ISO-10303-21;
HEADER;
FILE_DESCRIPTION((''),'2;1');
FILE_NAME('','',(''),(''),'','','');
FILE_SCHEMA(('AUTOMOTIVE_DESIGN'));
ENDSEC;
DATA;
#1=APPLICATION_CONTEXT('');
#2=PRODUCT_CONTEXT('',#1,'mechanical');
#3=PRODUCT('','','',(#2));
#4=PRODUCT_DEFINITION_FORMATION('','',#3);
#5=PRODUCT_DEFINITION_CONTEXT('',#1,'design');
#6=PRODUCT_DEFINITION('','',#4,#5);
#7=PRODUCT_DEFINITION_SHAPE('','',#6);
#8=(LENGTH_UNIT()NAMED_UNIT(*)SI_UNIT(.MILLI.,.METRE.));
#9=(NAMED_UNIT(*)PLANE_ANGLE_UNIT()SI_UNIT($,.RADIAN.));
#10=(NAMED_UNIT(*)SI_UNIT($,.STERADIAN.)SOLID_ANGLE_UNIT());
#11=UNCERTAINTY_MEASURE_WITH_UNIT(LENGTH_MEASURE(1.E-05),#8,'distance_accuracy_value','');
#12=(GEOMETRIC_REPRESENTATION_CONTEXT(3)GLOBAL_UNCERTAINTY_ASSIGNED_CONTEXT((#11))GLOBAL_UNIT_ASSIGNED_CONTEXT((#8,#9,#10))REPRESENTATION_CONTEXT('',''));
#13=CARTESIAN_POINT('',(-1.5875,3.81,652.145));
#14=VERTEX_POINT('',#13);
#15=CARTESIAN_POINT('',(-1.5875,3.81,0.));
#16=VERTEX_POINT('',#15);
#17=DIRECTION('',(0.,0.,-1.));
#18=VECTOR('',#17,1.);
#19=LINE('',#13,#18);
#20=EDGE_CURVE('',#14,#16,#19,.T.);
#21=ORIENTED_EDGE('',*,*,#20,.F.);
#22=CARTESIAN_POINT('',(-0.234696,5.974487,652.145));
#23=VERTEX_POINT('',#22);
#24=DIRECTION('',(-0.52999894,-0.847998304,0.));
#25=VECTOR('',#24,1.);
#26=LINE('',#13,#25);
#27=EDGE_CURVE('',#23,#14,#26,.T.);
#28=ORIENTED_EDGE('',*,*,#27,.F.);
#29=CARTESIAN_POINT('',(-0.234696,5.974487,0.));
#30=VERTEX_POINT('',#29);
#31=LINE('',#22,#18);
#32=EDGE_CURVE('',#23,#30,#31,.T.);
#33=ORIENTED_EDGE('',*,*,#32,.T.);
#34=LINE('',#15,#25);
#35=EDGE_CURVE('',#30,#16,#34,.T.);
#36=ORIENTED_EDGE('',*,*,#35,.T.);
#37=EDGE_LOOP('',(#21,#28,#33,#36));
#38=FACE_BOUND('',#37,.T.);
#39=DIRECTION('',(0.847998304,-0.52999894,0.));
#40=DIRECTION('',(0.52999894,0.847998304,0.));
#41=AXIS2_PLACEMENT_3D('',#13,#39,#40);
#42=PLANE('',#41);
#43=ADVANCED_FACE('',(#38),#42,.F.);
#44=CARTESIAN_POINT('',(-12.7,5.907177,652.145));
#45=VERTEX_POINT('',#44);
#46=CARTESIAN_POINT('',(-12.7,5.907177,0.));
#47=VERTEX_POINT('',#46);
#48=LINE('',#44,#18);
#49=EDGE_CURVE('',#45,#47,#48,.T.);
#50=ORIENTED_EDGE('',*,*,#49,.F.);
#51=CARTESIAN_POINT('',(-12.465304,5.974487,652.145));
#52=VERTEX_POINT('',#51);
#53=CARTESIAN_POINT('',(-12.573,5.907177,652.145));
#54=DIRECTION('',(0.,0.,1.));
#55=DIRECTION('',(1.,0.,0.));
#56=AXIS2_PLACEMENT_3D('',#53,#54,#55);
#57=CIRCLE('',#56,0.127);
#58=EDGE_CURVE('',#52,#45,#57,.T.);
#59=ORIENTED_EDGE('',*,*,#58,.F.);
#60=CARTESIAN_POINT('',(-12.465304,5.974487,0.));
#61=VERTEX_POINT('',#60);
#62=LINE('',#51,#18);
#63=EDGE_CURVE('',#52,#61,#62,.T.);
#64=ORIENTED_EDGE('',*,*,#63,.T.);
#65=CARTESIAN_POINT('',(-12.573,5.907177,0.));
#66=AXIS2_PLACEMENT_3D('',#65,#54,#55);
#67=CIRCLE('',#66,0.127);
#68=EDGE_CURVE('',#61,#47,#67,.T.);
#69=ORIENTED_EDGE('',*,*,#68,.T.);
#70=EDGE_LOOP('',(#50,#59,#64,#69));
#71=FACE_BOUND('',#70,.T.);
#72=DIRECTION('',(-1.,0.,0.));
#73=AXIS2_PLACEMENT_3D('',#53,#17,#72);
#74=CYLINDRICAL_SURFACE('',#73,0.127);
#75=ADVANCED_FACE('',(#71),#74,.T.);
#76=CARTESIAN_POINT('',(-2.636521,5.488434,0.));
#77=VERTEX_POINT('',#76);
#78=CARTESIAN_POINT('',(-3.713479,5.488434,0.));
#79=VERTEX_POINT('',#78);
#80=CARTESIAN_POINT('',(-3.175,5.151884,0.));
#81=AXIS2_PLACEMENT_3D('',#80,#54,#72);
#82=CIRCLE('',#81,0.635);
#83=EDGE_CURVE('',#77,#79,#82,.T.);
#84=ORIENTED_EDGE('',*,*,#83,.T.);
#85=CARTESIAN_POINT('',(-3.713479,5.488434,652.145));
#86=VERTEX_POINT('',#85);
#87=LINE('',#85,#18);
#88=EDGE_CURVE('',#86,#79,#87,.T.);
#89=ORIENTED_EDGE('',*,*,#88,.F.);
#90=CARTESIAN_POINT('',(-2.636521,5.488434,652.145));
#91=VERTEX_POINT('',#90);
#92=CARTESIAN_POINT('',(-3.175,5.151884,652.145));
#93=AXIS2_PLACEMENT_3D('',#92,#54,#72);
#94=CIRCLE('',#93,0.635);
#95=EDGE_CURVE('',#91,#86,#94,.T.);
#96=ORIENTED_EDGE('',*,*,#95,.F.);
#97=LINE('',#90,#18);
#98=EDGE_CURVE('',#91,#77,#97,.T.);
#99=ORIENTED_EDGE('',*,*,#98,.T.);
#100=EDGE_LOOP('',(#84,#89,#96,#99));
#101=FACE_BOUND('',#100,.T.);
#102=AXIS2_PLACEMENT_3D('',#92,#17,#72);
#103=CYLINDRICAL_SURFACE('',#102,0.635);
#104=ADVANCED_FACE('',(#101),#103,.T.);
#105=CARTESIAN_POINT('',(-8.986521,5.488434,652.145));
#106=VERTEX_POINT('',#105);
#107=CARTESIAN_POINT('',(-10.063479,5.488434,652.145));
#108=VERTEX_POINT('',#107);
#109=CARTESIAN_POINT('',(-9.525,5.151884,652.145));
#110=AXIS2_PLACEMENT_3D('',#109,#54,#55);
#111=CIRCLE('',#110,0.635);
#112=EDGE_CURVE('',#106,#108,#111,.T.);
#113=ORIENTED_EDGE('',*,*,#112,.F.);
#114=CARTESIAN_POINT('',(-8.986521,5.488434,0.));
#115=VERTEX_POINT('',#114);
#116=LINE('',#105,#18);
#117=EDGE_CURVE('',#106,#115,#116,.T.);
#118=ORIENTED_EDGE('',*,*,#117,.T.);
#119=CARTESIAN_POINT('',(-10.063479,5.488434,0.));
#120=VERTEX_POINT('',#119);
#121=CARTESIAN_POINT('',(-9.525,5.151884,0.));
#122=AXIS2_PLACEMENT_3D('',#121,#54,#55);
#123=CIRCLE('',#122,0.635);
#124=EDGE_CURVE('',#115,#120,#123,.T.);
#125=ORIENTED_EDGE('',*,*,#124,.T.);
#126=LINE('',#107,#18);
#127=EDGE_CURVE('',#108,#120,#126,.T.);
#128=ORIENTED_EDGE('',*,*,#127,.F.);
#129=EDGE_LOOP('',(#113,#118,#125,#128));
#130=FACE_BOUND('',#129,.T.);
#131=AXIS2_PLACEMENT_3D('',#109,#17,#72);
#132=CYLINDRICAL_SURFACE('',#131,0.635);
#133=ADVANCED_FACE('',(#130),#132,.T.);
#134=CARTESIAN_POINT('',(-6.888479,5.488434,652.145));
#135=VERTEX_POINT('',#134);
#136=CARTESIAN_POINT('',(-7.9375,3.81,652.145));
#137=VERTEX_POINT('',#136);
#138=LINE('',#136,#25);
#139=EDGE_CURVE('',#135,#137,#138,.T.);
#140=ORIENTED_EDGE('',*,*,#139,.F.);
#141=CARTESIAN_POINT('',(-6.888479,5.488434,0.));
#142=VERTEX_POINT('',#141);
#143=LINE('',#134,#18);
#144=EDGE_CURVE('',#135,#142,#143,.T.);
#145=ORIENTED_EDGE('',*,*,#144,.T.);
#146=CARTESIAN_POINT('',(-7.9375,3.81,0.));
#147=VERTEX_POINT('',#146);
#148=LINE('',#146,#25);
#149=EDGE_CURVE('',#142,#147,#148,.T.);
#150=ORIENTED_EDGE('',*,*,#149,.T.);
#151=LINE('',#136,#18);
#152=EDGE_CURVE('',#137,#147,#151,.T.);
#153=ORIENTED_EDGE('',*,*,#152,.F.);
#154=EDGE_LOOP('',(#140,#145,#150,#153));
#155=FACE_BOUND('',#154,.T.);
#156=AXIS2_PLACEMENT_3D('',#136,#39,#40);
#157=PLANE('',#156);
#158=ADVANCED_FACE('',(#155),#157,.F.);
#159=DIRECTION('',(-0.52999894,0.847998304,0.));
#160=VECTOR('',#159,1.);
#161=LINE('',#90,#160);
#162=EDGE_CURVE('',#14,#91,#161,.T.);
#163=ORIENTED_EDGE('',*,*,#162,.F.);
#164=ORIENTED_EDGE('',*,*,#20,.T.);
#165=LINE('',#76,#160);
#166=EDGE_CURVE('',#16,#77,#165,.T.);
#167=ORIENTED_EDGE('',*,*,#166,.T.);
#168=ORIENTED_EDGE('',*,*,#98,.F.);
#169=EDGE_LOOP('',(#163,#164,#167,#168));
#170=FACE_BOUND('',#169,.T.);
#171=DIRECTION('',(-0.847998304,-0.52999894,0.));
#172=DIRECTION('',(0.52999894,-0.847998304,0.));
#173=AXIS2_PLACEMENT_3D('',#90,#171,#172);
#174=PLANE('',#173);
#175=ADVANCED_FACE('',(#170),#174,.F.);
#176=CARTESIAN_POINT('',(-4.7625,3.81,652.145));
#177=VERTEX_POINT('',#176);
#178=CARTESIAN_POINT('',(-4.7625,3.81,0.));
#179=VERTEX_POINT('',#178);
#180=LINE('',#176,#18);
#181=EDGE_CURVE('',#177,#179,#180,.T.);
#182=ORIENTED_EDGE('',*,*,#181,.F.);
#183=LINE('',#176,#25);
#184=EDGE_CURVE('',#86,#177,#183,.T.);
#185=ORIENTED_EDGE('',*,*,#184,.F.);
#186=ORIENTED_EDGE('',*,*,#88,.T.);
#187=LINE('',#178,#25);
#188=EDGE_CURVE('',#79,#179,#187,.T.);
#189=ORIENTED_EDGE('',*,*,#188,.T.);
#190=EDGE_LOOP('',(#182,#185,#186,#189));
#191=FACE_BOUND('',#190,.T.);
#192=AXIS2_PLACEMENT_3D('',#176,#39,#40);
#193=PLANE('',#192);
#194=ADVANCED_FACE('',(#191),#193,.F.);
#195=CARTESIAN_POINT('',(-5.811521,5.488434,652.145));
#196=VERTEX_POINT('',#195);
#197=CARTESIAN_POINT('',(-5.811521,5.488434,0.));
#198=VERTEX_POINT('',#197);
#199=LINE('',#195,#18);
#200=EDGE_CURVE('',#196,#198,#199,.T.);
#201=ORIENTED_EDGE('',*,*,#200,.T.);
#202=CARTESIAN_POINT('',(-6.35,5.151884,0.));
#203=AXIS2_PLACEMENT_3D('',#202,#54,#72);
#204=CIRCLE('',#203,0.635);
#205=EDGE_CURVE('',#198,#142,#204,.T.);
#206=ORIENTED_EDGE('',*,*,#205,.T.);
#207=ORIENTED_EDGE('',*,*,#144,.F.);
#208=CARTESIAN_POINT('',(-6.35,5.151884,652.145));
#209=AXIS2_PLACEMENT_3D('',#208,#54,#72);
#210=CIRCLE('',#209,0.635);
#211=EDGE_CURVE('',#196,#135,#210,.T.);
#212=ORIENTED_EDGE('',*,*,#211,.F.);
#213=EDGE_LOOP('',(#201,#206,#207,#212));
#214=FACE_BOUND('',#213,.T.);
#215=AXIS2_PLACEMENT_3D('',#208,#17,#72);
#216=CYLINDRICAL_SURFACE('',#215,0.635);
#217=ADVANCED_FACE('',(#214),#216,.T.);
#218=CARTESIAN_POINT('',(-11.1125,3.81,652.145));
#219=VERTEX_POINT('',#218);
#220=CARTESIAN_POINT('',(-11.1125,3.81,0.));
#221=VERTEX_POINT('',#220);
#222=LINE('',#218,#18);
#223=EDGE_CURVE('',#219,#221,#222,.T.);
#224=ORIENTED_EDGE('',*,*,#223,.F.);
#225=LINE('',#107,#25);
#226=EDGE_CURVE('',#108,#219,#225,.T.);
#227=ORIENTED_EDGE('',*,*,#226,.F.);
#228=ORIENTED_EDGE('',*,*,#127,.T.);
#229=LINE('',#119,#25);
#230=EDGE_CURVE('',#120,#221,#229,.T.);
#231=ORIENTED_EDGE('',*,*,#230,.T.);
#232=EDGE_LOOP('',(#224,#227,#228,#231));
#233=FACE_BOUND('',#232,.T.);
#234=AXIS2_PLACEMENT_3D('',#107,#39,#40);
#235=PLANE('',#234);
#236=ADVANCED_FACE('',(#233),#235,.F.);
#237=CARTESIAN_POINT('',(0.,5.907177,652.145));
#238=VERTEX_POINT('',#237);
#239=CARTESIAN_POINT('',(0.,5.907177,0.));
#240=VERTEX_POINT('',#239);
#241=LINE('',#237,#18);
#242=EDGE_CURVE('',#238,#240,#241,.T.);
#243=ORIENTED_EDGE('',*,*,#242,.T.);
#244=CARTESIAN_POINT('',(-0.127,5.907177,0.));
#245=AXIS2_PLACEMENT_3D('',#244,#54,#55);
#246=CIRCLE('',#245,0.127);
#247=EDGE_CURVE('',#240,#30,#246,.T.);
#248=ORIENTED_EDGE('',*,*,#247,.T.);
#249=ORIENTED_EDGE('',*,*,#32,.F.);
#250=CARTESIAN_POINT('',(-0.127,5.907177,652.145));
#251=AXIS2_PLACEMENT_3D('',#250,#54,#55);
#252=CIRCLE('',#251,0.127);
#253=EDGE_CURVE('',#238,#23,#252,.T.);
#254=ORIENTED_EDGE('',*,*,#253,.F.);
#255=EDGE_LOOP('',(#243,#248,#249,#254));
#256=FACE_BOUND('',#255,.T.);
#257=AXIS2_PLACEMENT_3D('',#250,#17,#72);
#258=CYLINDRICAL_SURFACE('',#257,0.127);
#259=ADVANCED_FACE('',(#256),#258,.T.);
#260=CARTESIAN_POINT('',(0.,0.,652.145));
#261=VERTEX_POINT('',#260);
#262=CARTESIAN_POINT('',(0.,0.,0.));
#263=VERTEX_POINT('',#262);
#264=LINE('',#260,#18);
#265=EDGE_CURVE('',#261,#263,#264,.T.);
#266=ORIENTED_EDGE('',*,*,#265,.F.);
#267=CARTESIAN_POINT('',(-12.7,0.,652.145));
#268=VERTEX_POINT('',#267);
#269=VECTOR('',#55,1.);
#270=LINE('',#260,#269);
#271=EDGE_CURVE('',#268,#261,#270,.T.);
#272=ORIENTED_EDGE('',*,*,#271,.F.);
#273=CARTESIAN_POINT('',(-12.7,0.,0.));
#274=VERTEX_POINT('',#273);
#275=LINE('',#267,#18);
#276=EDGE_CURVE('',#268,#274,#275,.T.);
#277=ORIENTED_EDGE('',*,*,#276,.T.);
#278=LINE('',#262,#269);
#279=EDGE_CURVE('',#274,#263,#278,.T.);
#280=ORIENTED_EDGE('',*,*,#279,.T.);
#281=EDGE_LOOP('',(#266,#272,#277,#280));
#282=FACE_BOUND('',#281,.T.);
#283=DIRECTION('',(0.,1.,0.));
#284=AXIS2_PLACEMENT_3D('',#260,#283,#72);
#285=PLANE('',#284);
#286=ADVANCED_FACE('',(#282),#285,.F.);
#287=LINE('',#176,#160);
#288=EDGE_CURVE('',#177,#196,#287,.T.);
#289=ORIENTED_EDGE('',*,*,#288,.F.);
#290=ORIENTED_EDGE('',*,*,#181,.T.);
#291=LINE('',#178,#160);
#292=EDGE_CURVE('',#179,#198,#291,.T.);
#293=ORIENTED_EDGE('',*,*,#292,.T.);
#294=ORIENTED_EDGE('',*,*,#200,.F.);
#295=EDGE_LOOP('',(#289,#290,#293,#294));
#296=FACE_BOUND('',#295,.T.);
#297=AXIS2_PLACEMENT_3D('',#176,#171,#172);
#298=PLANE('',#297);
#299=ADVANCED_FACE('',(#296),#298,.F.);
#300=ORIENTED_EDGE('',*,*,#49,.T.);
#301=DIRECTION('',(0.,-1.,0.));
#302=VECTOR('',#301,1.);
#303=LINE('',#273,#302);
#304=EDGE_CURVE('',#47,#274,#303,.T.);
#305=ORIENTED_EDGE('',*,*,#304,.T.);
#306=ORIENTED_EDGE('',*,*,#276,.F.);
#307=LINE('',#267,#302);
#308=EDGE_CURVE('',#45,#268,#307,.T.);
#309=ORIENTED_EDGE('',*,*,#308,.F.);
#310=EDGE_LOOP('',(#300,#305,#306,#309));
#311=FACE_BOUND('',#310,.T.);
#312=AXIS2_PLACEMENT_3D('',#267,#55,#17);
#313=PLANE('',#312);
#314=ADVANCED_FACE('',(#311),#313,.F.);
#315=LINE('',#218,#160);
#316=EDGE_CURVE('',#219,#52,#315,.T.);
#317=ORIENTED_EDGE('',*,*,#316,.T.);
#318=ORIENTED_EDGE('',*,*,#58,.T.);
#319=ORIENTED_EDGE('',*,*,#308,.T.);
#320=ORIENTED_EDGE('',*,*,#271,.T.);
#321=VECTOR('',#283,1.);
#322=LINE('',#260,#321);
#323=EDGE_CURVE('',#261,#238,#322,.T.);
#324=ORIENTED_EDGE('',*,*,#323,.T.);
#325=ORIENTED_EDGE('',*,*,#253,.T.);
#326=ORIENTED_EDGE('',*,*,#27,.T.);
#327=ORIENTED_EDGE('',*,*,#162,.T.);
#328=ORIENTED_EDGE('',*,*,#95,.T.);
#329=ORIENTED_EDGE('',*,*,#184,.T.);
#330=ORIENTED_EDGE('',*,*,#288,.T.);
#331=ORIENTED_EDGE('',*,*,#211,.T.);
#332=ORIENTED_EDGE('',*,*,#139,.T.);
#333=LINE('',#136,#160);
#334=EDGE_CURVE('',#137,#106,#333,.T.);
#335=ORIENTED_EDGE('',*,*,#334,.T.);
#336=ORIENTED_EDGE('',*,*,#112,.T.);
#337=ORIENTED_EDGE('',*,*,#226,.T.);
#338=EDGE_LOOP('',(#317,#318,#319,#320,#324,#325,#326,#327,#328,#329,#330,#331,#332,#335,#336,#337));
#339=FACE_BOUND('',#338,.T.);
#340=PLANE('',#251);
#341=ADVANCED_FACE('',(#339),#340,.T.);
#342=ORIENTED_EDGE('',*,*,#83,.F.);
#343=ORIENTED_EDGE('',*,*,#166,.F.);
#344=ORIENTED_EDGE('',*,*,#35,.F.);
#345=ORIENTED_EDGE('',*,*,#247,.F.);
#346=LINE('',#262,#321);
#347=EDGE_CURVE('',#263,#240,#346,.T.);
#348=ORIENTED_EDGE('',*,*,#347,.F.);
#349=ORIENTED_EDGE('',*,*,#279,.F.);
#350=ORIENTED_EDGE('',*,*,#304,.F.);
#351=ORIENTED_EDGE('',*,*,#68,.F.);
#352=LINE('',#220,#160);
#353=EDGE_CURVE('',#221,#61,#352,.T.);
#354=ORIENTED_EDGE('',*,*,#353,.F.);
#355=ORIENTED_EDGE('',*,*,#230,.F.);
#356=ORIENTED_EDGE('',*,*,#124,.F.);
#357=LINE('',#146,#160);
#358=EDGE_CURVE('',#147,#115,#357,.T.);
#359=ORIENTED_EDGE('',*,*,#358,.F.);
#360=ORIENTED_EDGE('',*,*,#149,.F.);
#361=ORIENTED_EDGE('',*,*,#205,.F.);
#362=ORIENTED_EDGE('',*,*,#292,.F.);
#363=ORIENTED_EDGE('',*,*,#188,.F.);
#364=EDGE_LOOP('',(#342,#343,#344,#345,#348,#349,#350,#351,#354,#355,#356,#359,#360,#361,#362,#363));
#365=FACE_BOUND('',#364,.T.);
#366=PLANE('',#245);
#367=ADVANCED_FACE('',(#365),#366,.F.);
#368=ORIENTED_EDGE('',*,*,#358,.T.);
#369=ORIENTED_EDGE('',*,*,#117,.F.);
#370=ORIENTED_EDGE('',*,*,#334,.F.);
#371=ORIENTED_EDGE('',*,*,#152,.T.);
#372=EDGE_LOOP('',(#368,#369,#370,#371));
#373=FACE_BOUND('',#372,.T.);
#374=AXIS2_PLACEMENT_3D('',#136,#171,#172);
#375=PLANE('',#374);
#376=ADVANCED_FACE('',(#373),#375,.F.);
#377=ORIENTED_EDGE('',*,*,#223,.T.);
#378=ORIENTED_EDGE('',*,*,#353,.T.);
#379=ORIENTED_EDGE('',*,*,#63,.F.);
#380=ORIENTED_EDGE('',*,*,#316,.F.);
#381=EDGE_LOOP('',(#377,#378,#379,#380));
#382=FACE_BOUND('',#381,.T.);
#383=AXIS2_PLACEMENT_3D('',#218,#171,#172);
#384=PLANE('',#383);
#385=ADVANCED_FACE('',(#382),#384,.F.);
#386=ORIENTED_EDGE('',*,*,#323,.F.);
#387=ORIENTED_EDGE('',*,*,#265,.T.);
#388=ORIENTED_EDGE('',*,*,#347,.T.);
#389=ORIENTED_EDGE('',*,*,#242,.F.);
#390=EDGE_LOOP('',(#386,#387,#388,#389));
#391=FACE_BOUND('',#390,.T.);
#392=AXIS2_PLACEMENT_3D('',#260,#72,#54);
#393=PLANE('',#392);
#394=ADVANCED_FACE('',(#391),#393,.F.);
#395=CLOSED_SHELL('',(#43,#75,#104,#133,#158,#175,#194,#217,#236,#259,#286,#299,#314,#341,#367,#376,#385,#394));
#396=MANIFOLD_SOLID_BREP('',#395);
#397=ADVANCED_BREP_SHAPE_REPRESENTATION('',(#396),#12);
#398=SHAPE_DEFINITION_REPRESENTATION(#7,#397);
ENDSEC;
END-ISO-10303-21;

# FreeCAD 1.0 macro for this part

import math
import FreeCAD as App
import Part
import Sketcher

V = App.Vector
Q = App.Units.Quantity

doc = App.newDocument("Part")
body = doc.addObject("PartDesign::Body", "Body")

# Sketch on XY plane
sketch1 = doc.addObject("Sketcher::SketchObject", "Sketch")
body.addObject(sketch1)
sketch1.AttachmentSupport = (doc.XY_Plane, [""])
sketch1.MapMode = "FlatFace"
sketch1.addGeometry([
    Part.LineSegment(V(-12.7, 0, 0), V(0, 0, 0)),  # 0
    Part.LineSegment(V(0, 0, 0), V(0, 5.91, 0)),  # 1
    Part.ArcOfCircle(Part.Circle(V(-0.13, 5.91, 0), V(0, 0, 1), 0.13), math.radians(0), math.radians(148)),  # 2
    Part.LineSegment(V(-0.23, 5.97, 0), V(-1.59, 3.81, 0)),  # 3
    Part.LineSegment(V(-1.59, 3.81, 0), V(-2.64, 5.49, 0)),  # 4
    Part.ArcOfCircle(Part.Circle(V(-3.17, 5.15, 0), V(0, 0, 1), 0.64), math.radians(32), math.radians(148)),  # 5
    Part.LineSegment(V(-3.71, 5.49, 0), V(-4.76, 3.81, 0)),  # 6
    Part.LineSegment(V(-4.76, 3.81, 0), V(-5.81, 5.49, 0)),  # 7
    Part.ArcOfCircle(Part.Circle(V(-6.35, 5.15, 0), V(0, 0, 1), 0.64), math.radians(32), math.radians(148)),  # 8
    Part.LineSegment(V(-6.89, 5.49, 0), V(-7.94, 3.81, 0)),  # 9
    Part.LineSegment(V(-7.94, 3.81, 0), V(-8.99, 5.49, 0)),  # 10
    Part.ArcOfCircle(Part.Circle(V(-9.53, 5.15, 0), V(0, 0, 1), 0.64), math.radians(32), math.radians(148)),  # 11
    Part.LineSegment(V(-10.06, 5.49, 0), V(-11.11, 3.81, 0)),  # 12
    Part.LineSegment(V(-11.11, 3.81, 0), V(-12.47, 5.97, 0)),  # 13
    Part.ArcOfCircle(Part.Circle(V(-12.57, 5.91, 0), V(0, 0, 1), 0.13), math.radians(32), math.radians(180)),  # 14
    Part.LineSegment(V(-12.7, 5.91, 0), V(-12.7, 0, 0)),  # 15
], False)
sketch1.addConstraint([
    Sketcher.Constraint("Coincident", 0, 2, 1, 1),
    Sketcher.Constraint("Tangent", 1, 2, 2, 1),
    Sketcher.Constraint("Tangent", 2, 2, 3, 1),
    Sketcher.Constraint("Coincident", 3, 2, 4, 1),
    Sketcher.Constraint("Tangent", 4, 2, 5, 1),
    Sketcher.Constraint("Tangent", 5, 2, 6, 1),
    Sketcher.Constraint("Coincident", 6, 2, 7, 1),
    Sketcher.Constraint("Tangent", 7, 2, 8, 1),
    Sketcher.Constraint("Tangent", 8, 2, 9, 1),
    Sketcher.Constraint("Coincident", 9, 2, 10, 1),
    Sketcher.Constraint("Tangent", 10, 2, 11, 1),
    Sketcher.Constraint("Tangent", 11, 2, 12, 1),
    Sketcher.Constraint("Coincident", 12, 2, 13, 1),
    Sketcher.Constraint("Tangent", 13, 2, 14, 1),
    Sketcher.Constraint("Tangent", 14, 2, 15, 1),
    Sketcher.Constraint("Coincident", 15, 2, 0, 1),
    Sketcher.Constraint("Horizontal", 0),
    Sketcher.Constraint("Vertical", 1),
    Sketcher.Constraint("Vertical", 15),
    Sketcher.Constraint("Coincident", 0, 2, -1, 1),
    Sketcher.Constraint("Equal", 5, 8),
    Sketcher.Constraint("Equal", 8, 11),
    Sketcher.Constraint("Equal", 2, 14),
    Sketcher.Constraint("Parallel", 3, 6),
    Sketcher.Constraint("Parallel", 4, 7),
    Sketcher.Constraint("Parallel", 6, 9),
    Sketcher.Constraint("Parallel", 7, 10),
    Sketcher.Constraint("Parallel", 9, 12),
    Sketcher.Constraint("Parallel", 10, 13),
    Sketcher.Constraint("Horizontal", 5, 3, 8, 3),
    Sketcher.Constraint("Horizontal", 8, 3, 11, 3),
    Sketcher.Constraint("Horizontal", 2, 3, 14, 3),
    Sketcher.Constraint("Horizontal", 4, 2, 5, 2),
    Sketcher.Constraint("Horizontal", 3, 2, 6, 2),
    Sketcher.Constraint("Horizontal", 6, 2, 9, 2),
    Sketcher.Constraint("Horizontal", 9, 2, 12, 2),
    Sketcher.Constraint("DistanceX", 0, 1, 0, 2, Q("0.5 in")),
    Sketcher.Constraint("Radius", 2, Q("0.005 in")),
    Sketcher.Constraint("Radius", 5, Q("0.025 in")),
    Sketcher.Constraint("DistanceY", -1, 1, 3, 2, Q("0.15 in")),
    Sketcher.Constraint("DistanceX", 5, 3, 2, 3, Q("0.12 in")),
    Sketcher.Constraint("DistanceX", 4, 2, -1, 1, Q("0.1038 in")),
])
pad1 = doc.addObject("PartDesign::Pad", "Pad")
body.addObject(pad1)
pad1.Profile = sketch1
pad1.Length = Q("25.675 in")

doc.recompute()
